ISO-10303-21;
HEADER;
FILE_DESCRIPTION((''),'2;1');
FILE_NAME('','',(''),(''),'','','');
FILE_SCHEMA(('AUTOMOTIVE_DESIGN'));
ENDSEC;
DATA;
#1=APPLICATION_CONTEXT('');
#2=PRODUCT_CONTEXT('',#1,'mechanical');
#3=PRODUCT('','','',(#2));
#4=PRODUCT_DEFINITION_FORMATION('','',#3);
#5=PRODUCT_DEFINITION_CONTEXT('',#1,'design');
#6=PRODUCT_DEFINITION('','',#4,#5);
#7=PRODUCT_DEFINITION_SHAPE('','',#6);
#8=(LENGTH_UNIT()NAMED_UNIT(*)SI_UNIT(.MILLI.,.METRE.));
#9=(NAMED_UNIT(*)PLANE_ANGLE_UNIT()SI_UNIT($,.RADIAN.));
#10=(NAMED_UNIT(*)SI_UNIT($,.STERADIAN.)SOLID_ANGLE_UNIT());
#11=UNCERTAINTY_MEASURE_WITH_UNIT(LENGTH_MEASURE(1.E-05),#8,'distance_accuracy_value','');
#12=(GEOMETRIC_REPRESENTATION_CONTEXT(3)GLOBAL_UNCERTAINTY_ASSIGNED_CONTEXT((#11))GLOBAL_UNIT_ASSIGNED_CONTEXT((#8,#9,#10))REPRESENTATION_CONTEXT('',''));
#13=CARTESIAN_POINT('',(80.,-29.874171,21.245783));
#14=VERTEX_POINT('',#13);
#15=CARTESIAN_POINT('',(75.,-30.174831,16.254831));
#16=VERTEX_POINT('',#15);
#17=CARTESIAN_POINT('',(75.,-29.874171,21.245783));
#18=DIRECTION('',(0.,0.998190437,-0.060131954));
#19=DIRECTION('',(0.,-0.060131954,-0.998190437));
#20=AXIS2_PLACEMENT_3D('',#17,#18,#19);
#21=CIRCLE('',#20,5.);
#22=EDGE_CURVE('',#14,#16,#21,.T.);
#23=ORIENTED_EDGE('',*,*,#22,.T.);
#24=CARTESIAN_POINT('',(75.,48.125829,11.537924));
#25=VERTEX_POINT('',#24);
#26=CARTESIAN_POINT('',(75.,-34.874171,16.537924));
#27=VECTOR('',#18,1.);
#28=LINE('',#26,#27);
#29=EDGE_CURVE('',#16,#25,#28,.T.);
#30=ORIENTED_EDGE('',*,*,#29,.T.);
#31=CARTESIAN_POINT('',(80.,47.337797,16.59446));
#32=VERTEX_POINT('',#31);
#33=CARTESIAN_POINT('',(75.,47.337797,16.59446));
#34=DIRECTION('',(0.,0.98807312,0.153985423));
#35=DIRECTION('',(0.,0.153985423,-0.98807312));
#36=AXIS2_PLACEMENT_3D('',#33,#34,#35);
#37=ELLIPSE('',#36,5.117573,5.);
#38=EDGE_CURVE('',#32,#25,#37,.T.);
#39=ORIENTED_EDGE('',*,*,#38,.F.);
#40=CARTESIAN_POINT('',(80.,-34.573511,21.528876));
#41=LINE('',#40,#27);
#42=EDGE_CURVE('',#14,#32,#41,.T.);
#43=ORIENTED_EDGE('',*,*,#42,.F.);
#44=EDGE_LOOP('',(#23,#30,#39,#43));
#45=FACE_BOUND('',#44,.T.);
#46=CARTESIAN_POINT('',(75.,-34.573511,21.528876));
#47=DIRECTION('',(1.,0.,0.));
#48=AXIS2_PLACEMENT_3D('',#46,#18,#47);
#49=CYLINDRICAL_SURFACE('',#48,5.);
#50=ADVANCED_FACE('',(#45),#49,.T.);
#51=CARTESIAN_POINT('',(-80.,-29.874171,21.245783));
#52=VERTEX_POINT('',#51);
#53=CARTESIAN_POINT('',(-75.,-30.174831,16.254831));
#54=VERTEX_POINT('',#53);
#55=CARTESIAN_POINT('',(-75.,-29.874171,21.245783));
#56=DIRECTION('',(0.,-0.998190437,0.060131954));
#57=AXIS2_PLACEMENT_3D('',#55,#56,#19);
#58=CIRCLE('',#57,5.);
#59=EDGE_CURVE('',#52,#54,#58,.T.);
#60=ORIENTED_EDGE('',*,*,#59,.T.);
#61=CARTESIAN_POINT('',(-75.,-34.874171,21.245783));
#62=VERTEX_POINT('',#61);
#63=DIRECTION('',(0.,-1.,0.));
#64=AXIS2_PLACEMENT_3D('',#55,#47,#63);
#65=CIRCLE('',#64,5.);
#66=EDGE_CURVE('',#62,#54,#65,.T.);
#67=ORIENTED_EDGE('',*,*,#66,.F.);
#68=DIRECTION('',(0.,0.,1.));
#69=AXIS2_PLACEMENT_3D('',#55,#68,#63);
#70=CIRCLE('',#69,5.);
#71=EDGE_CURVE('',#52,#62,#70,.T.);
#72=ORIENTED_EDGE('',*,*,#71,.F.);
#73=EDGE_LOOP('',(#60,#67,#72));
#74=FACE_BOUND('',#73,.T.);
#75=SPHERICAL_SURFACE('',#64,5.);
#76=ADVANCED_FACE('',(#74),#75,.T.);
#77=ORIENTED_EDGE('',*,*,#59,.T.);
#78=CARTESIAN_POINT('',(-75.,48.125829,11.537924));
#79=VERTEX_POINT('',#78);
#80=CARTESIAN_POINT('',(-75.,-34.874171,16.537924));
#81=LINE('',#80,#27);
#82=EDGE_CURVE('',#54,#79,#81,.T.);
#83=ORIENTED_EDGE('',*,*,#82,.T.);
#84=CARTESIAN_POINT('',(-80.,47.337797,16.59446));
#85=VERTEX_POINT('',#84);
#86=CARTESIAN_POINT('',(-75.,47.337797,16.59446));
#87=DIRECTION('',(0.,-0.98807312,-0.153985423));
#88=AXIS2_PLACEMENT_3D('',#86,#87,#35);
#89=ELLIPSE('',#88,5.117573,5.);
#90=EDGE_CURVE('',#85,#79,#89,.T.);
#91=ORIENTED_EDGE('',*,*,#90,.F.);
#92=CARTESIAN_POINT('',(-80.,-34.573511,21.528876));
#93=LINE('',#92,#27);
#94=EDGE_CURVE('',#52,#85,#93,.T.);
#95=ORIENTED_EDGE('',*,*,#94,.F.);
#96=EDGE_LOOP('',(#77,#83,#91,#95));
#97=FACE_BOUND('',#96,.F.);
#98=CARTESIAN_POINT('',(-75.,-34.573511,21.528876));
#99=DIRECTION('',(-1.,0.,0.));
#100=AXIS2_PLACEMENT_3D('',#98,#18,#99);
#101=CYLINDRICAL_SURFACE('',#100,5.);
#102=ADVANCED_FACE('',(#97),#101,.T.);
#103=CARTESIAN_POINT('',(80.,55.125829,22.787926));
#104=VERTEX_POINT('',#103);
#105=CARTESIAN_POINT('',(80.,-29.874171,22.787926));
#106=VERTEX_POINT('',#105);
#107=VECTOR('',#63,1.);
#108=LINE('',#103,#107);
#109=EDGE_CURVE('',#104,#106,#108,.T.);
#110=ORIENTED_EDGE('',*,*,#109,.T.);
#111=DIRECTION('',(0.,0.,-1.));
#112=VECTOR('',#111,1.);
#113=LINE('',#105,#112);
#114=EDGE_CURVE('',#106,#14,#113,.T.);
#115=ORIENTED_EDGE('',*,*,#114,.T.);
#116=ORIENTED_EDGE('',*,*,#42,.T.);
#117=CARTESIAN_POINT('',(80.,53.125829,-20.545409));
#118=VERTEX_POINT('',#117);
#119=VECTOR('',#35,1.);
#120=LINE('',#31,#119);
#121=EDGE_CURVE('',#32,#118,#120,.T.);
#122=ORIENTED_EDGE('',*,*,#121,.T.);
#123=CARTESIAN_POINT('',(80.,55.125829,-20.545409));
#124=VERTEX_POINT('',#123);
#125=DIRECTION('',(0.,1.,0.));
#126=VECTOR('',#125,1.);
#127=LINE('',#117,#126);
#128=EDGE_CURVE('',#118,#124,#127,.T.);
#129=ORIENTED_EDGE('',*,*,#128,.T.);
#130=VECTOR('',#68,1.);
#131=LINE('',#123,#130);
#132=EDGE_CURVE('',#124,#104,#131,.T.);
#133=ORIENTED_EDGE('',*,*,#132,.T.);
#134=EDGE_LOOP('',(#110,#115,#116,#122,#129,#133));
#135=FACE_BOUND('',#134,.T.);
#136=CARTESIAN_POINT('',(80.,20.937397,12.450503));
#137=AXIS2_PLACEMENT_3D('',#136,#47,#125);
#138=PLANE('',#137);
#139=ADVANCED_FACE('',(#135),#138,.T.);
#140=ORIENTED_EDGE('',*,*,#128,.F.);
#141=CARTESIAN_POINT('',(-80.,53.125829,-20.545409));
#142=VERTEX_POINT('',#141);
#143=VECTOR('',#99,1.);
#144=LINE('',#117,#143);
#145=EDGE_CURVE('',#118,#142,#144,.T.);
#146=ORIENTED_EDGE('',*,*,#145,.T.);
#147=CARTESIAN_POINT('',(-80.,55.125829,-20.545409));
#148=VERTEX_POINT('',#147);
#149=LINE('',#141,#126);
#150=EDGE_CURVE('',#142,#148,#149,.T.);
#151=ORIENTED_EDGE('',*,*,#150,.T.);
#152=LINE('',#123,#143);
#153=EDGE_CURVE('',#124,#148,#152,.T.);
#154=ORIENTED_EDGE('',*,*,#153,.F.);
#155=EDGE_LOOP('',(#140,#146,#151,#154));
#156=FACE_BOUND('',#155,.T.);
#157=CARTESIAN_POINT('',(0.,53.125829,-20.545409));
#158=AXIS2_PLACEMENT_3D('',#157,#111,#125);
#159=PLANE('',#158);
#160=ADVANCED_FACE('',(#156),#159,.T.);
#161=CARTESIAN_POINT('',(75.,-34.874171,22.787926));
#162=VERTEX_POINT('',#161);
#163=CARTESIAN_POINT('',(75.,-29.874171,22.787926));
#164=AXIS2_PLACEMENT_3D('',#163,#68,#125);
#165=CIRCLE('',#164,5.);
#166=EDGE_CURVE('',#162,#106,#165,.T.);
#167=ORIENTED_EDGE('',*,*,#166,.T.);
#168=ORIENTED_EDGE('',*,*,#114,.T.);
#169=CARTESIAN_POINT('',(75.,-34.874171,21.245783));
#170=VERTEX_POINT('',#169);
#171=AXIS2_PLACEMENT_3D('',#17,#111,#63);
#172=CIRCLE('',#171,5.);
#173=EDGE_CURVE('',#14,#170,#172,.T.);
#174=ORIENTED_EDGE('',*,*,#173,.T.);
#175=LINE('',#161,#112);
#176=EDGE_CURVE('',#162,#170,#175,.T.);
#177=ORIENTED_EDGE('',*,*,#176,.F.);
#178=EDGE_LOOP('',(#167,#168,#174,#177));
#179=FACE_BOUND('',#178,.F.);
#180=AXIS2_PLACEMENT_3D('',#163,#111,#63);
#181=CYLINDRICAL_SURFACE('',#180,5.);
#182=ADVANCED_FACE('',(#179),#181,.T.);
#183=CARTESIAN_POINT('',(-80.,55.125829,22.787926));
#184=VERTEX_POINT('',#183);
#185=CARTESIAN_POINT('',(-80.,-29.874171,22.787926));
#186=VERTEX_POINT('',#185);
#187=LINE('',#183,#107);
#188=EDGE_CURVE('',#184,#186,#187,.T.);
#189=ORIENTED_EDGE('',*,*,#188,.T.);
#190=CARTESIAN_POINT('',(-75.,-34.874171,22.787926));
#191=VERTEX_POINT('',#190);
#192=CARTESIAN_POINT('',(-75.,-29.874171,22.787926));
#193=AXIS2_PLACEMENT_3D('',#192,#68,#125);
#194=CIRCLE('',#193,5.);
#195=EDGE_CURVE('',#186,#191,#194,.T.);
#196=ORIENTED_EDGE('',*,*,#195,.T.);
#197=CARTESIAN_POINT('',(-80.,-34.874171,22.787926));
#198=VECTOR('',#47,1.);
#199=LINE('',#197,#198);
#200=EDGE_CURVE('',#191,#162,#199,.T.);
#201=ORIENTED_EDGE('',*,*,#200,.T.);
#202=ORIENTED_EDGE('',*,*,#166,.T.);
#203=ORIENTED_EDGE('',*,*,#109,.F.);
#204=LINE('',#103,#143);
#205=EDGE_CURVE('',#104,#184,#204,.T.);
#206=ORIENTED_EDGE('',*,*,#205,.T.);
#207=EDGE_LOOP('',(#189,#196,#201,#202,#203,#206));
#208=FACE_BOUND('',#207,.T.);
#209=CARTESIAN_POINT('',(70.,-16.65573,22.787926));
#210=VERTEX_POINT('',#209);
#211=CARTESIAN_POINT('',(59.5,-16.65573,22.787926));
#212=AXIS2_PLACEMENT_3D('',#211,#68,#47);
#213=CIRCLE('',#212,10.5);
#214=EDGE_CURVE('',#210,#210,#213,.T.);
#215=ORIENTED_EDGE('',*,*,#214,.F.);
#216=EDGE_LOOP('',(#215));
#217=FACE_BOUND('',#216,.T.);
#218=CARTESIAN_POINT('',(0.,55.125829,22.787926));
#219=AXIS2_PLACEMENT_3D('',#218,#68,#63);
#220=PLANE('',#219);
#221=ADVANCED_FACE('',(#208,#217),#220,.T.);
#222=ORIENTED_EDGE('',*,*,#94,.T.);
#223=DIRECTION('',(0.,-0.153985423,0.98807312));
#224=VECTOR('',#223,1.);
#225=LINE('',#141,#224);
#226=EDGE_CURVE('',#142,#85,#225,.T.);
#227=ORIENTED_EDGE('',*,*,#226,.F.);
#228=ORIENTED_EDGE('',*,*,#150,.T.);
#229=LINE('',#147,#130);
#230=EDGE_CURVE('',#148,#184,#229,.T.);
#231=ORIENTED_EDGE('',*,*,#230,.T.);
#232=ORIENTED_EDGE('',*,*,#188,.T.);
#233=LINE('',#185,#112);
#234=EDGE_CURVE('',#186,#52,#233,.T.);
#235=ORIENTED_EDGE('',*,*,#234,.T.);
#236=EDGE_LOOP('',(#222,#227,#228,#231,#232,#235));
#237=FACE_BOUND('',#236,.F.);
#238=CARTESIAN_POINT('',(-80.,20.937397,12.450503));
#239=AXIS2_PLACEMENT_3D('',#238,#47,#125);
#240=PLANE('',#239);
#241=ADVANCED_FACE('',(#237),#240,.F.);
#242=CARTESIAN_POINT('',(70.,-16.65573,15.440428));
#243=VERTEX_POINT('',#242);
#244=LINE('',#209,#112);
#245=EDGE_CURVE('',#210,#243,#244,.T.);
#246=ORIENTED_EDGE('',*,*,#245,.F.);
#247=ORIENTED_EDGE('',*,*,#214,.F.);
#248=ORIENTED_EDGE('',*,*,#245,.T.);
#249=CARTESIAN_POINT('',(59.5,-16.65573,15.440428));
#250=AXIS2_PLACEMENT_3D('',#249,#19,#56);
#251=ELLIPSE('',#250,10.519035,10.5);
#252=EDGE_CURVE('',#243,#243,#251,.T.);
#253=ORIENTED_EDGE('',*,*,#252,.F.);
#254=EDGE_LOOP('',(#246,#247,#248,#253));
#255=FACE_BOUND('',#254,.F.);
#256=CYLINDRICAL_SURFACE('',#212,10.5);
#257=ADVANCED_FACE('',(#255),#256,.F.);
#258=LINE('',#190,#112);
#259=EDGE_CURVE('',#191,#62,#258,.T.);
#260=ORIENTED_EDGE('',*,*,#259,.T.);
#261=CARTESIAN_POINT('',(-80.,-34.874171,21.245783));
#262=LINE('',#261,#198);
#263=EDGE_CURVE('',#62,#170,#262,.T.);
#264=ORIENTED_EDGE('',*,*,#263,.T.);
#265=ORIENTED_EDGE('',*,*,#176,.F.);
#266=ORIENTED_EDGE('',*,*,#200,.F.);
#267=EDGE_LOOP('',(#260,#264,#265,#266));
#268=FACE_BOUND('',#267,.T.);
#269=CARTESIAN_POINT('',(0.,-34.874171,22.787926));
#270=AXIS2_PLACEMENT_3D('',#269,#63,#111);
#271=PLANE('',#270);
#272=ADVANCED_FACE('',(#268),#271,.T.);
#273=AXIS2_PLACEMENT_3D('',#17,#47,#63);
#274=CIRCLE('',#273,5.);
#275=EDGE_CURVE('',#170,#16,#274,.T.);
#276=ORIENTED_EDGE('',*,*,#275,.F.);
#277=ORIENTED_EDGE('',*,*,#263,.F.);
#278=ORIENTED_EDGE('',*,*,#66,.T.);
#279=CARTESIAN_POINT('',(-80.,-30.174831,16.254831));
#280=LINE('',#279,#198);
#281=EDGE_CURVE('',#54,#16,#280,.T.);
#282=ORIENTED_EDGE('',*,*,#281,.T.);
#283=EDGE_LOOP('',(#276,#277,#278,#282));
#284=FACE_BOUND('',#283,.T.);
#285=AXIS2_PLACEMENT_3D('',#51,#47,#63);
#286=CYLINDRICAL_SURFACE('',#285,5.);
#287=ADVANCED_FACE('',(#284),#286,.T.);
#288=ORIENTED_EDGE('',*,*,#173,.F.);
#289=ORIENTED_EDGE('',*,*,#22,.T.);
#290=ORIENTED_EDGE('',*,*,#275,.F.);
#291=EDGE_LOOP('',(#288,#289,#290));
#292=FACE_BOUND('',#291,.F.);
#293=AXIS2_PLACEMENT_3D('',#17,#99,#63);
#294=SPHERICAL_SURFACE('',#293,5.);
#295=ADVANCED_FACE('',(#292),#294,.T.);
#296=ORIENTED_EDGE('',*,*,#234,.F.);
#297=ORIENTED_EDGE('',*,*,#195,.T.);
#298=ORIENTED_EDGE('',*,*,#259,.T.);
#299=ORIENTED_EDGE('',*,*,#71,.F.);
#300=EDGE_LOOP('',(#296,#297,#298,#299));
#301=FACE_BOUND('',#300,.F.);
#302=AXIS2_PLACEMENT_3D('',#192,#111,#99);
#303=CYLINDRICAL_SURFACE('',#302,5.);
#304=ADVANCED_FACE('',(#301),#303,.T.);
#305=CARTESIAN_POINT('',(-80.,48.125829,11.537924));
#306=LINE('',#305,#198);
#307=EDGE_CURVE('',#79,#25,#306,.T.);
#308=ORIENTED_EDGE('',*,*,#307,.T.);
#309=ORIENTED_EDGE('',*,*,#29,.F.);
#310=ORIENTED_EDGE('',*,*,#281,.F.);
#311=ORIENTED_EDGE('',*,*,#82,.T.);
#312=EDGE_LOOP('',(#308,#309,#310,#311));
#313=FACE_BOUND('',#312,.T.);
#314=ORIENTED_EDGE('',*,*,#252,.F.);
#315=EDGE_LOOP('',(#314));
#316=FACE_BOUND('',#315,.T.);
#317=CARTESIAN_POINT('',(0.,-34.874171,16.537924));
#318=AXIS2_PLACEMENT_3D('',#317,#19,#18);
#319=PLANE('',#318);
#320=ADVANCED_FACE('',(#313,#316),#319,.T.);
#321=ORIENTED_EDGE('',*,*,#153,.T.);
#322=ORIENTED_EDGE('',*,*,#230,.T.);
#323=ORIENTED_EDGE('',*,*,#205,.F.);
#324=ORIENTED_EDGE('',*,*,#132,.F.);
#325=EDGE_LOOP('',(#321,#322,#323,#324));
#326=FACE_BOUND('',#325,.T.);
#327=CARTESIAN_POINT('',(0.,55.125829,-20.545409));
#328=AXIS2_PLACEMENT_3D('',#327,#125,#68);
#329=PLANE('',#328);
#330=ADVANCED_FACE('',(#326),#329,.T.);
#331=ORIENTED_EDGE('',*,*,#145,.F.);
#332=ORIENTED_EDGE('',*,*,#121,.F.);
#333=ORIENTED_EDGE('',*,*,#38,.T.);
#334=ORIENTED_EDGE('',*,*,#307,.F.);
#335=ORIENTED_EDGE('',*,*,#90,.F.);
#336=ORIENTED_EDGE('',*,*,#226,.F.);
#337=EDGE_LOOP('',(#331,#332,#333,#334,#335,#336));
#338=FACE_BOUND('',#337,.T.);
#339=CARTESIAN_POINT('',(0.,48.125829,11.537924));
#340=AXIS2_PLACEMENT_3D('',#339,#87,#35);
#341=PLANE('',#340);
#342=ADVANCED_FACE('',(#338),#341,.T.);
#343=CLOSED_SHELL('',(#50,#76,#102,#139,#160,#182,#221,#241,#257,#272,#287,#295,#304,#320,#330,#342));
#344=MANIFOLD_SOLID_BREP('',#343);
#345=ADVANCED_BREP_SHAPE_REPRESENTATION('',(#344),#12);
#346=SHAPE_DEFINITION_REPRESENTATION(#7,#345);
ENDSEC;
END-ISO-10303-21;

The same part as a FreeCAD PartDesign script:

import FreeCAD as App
import Part
import Sketcher
Q = App.Units.Quantity


def edges_at(feature, points):
    """Names of the edges that pass closest to the given points."""
    edges = feature.Shape.Edges
    near = lambda p: min(range(len(edges)), key=lambda i: edges[i].distToShape(Part.Vertex(*p))[0])
    return sorted({f"Edge{near(p) + 1}" for p in points})

doc = App.newDocument("Part")
params = doc.addObject("Spreadsheet::Sheet", "Params")
for row, (alias, value) in enumerate([
    ("sketch1_width", "90 mm"),
    ("sketch1_width2", "2 mm"),
    ("sketch1_height", "6.250002 mm"),
    ("pad1_length", "160 mm"),
    ("sketch2_diameter", "21 mm"),
    ("pocket1_length", "25 mm"),
    ("fillet_radius", "5 mm"),
], start=1):
    params.set(f"A{row}", alias)
    params.set(f"B{row}", "=" + value)
    params.setAlias(f"B{row}", alias)

body = doc.addObject("PartDesign::Body", "Body")

# Sketch on YZ plane
sketch1 = body.newObject("Sketcher::SketchObject", "Sketch")
sketch1.AttachmentSupport = (doc.getObject("YZ_Plane"), [""])
sketch1.MapMode = "FlatFace"
sketch1.addGeometry([
    Part.LineSegment(App.Vector(55.125829, 22.787926, 0), App.Vector(-34.874171, 22.787926, 0)),  # 0
    Part.LineSegment(App.Vector(-34.874171, 22.787926, 0), App.Vector(-34.874171, 16.537924, 0)),  # 1
    Part.LineSegment(App.Vector(-34.874171, 16.537924, 0), App.Vector(48.125829, 11.537924, 0)),  # 2
    Part.LineSegment(App.Vector(48.125829, 11.537924, 0), App.Vector(53.125829, -20.545409, 0)),  # 3
    Part.LineSegment(App.Vector(53.125829, -20.545409, 0), App.Vector(55.125829, -20.545409, 0)),  # 4
    Part.LineSegment(App.Vector(55.125829, -20.545409, 0), App.Vector(55.125829, 22.787926, 0)),  # 5
], False)
sketch1.addConstraint([
    Sketcher.Constraint("Coincident", 0, 2, 1, 1),
    Sketcher.Constraint("Coincident", 1, 2, 2, 1),
    Sketcher.Constraint("Coincident", 2, 2, 3, 1),
    Sketcher.Constraint("Coincident", 3, 2, 4, 1),
    Sketcher.Constraint("Coincident", 4, 2, 5, 1),
    Sketcher.Constraint("Coincident", 5, 2, 0, 1),
    Sketcher.Constraint("Horizontal", 0),
    Sketcher.Constraint("Vertical", 1),
    Sketcher.Constraint("Horizontal", 4),
    Sketcher.Constraint("Vertical", 5),
    Sketcher.Constraint("DistanceX", 0, 2, 0, 1, Q("90 mm")),
    Sketcher.Constraint("DistanceX", 4, 1, 4, 2, Q("2 mm")),
    Sketcher.Constraint("DistanceX", 1, 2, 2, 2, Q("83 mm")),
    Sketcher.Constraint("DistanceY", 2, 2, 1, 2, Q("5 mm")),
    Sketcher.Constraint("DistanceY", 1, 2, 1, 1, Q("6.250002 mm")),
    Sketcher.Constraint("DistanceY", 5, 1, 5, 2, Q("43.333335 mm")),
    Sketcher.Constraint("DistanceX", 0, 2, -1, 1, Q("34.874171 mm")),
    Sketcher.Constraint("DistanceY", 3, 2, -1, 1, Q("20.545409 mm")),
])
sketch1.setExpression("Constraints[10]", "Params.sketch1_width")
sketch1.setExpression("Constraints[11]", "Params.sketch1_width2")
sketch1.setExpression("Constraints[14]", "Params.sketch1_height")
pad1 = body.newObject("PartDesign::Pad", "Pad")
pad1.Profile = sketch1
pad1.setExpression("Length", "Params.pad1_length")
pad1.Midplane = True

# Sketch on XY plane
sketch2 = body.newObject("Sketcher::SketchObject", "Sketch001")
sketch2.AttachmentSupport = (doc.getObject("XY_Plane"), [""])
sketch2.MapMode = "FlatFace"
sketch2.AttachmentOffset = App.Placement(App.Vector(0, 0, 22.787926), App.Rotation())
sketch2.addGeometry(Part.Circle(App.Vector(59.5, -16.65573, 0), App.Vector(0, 0, 1), 10.5), False)
sketch2.addConstraint([
    Sketcher.Constraint("Diameter", 0, Q("21 mm")),
    Sketcher.Constraint("DistanceX", -1, 1, 0, 3, Q("59.5 mm")),
    Sketcher.Constraint("DistanceY", 0, 3, -1, 1, Q("16.65573 mm")),
])
sketch2.setExpression("Constraints[0]", "Params.sketch2_diameter")
pocket1 = body.newObject("PartDesign::Pocket", "Pocket")
pocket1.Profile = sketch2
pocket1.setExpression("Length", "Params.pocket1_length")
doc.recompute()

fillet = body.newObject("PartDesign::Fillet", "Fillet")
fillet.Base = (pocket1, edges_at(pocket1, [
    (80, -34.874, 19.663),
    (-80, -34.874, 19.663),
    (80, 6.626, 14.038),
    (-80, 6.626, 14.038),
    (0, -34.874, 16.538),
]))
fillet.setExpression("Radius", "Params.fillet_radius")

doc.recompute()
